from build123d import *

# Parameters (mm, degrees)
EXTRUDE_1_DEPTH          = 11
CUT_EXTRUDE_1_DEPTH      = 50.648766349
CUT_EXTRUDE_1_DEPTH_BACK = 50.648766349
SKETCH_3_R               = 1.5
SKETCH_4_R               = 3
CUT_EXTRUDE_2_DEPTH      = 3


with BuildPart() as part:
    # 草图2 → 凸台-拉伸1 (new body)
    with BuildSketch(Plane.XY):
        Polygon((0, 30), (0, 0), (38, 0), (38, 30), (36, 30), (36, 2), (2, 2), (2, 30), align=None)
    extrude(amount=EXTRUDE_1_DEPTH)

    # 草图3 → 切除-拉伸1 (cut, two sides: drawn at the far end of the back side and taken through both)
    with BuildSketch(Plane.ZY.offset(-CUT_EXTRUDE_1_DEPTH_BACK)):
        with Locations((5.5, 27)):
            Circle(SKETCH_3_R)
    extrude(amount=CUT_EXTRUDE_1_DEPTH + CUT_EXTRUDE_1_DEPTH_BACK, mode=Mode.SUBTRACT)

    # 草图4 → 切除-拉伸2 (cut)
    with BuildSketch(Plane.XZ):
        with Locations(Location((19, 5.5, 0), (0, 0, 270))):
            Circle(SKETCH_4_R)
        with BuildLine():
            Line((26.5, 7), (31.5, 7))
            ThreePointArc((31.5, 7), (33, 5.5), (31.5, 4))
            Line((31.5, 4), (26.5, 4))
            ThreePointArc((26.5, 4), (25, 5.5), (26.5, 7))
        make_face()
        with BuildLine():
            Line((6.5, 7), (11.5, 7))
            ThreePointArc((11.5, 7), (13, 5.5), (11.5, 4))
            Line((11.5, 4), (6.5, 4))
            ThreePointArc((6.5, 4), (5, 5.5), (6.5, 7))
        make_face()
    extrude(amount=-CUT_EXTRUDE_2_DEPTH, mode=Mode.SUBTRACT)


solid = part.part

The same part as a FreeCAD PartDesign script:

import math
import FreeCAD as App
import Part
import Sketcher
from FreeCAD import Vector

doc = App.newDocument("Part")
body = doc.addObject("PartDesign::Body", "Body")

sketch1 = doc.addObject("Sketcher::SketchObject", "Sketch")
body.addObject(sketch1)
sketch1.AttachmentSupport = (doc.XY_Plane, [""])
sketch1.MapMode = "FlatFace"
sketch1.addGeometry([
    Part.LineSegment(Vector(0, 30, 0), Vector(0, 0, 0)),
    Part.LineSegment(Vector(0, 0, 0), Vector(38, 0, 0)),
    Part.LineSegment(Vector(38, 0, 0), Vector(38, 30, 0)),
    Part.LineSegment(Vector(38, 30, 0), Vector(36, 30, 0)),
    Part.LineSegment(Vector(36, 30, 0), Vector(36, 2, 0)),
    Part.LineSegment(Vector(36, 2, 0), Vector(2, 2, 0)),
    Part.LineSegment(Vector(2, 2, 0), Vector(2, 30, 0)),
    Part.LineSegment(Vector(2, 30, 0), Vector(0, 30, 0)),
], False)
sketch1.addConstraint([
    Sketcher.Constraint("Coincident", 0, 2, 1, 1),
    Sketcher.Constraint("Coincident", 1, 2, 2, 1),
    Sketcher.Constraint("Coincident", 2, 2, 3, 1),
    Sketcher.Constraint("Coincident", 3, 2, 4, 1),
    Sketcher.Constraint("Coincident", 4, 2, 5, 1),
    Sketcher.Constraint("Coincident", 5, 2, 6, 1),
    Sketcher.Constraint("Coincident", 6, 2, 7, 1),
    Sketcher.Constraint("Coincident", 7, 2, 0, 1),
    Sketcher.Constraint("Vertical", 0),
    Sketcher.Constraint("Horizontal", 1),
    Sketcher.Constraint("Vertical", 2),
    Sketcher.Constraint("Horizontal", 3),
    Sketcher.Constraint("Vertical", 4),
    Sketcher.Constraint("Horizontal", 5),
    Sketcher.Constraint("Vertical", 6),
    Sketcher.Constraint("Horizontal", 7),
    Sketcher.Constraint("Coincident", 0, 2, -1, 1),
    Sketcher.Constraint("Horizontal", 3, 2, 6, 2),
    Sketcher.Constraint("Equal", 3, 7),
    Sketcher.Constraint("DistanceX", 1, 1, 1, 2, 38.0),
    Sketcher.Constraint("DistanceX", 3, 2, 3, 1, 2.0),
    Sketcher.Constraint("DistanceY", 0, 2, 0, 1, 30.0),
    Sketcher.Constraint("DistanceY", 4, 2, 4, 1, 28.0),
])
pad1 = doc.addObject("PartDesign::Pad", "Pad")
body.addObject(pad1)
pad1.Profile = sketch1
pad1.Length = 11

sketch2 = doc.addObject("Sketcher::SketchObject", "Sketch001")
body.addObject(sketch2)
sketch2.AttachmentSupport = (doc.YZ_Plane, [""])
sketch2.MapMode = "FlatFace"
sketch2.addGeometry(Part.Circle(Vector(27, 5.5, 0), Vector(0, 0, 1), 1.5), False)
sketch2.addConstraint([
    Sketcher.Constraint("Diameter", 0, 3.0),
    Sketcher.Constraint("DistanceX", -1, 1, 0, 3, 27.0),
    Sketcher.Constraint("DistanceY", -1, 1, 0, 3, 5.5),
])
pocket1 = doc.addObject("PartDesign::Pocket", "Pocket")
body.addObject(pocket1)
pocket1.Profile = sketch2
pocket1.Type = "ThroughAll"
pocket1.Midplane = True

sketch3 = doc.addObject("Sketcher::SketchObject", "Sketch002")
body.addObject(sketch3)
sketch3.AttachmentSupport = (doc.XZ_Plane, [""])
sketch3.MapMode = "FlatFace"
sketch3.addGeometry([
    Part.Circle(Vector(19, 5.5, 0), Vector(0, 0, 1), 3),
    Part.LineSegment(Vector(31.5, 7, 0), Vector(26.5, 7, 0)),
    Part.ArcOfCircle(Part.Circle(Vector(26.5, 5.5, 0), Vector(0, 0, 1), 1.5), math.radians(90), math.radians(270)),
    Part.LineSegment(Vector(26.5, 4, 0), Vector(31.5, 4, 0)),
    Part.ArcOfCircle(Part.Circle(Vector(31.5, 5.5, 0), Vector(0, 0, 1), 1.5), math.radians(-90), math.radians(90)),
    Part.LineSegment(Vector(11.5, 7, 0), Vector(6.5, 7, 0)),
    Part.ArcOfCircle(Part.Circle(Vector(6.5, 5.5, 0), Vector(0, 0, 1), 1.5), math.radians(90), math.radians(270)),
    Part.LineSegment(Vector(6.5, 4, 0), Vector(11.5, 4, 0)),
    Part.ArcOfCircle(Part.Circle(Vector(11.5, 5.5, 0), Vector(0, 0, 1), 1.5), math.radians(-90), math.radians(90)),
], False)
sketch3.addConstraint([
    Sketcher.Constraint("Tangent", 1, 2, 2, 1),
    Sketcher.Constraint("Tangent", 2, 2, 3, 1),
    Sketcher.Constraint("Tangent", 3, 2, 4, 1),
    Sketcher.Constraint("Tangent", 4, 2, 1, 1),
    Sketcher.Constraint("Tangent", 5, 2, 6, 1),
    Sketcher.Constraint("Tangent", 6, 2, 7, 1),
    Sketcher.Constraint("Tangent", 7, 2, 8, 1),
    Sketcher.Constraint("Tangent", 8, 2, 5, 1),
    Sketcher.Constraint("Horizontal", 1),
    Sketcher.Constraint("Horizontal", 3),
    Sketcher.Constraint("Horizontal", 5),
    Sketcher.Constraint("Horizontal", 7),
    Sketcher.Constraint("Equal", 4, 6),
    Sketcher.Constraint("Horizontal", 0, 3, 2, 3),
    Sketcher.Constraint("Horizontal", 4, 3, 6, 3),
    Sketcher.Constraint("Equal", 3, 5),
    Sketcher.Constraint("Diameter", 0, 6.0),
    Sketcher.Constraint("Radius", 2, 1.5),
    Sketcher.Constraint("DistanceX", 1, 2, 1, 1, 5.0),
    Sketcher.Constraint("DistanceX", -1, 1, 0, 3, 19.0),
    Sketcher.Constraint("DistanceY", -1, 1, 1, 2, 7.0),
    Sketcher.Constraint("DistanceX", 6, 3, 2, 3, 20.0),
    Sketcher.Constraint("DistanceX", -1, 1, 2, 3, 26.5),
])
pocket2 = doc.addObject("PartDesign::Pocket", "Pocket001")
body.addObject(pocket2)
pocket2.Profile = sketch3
pocket2.Length = 3

doc.recompute()
